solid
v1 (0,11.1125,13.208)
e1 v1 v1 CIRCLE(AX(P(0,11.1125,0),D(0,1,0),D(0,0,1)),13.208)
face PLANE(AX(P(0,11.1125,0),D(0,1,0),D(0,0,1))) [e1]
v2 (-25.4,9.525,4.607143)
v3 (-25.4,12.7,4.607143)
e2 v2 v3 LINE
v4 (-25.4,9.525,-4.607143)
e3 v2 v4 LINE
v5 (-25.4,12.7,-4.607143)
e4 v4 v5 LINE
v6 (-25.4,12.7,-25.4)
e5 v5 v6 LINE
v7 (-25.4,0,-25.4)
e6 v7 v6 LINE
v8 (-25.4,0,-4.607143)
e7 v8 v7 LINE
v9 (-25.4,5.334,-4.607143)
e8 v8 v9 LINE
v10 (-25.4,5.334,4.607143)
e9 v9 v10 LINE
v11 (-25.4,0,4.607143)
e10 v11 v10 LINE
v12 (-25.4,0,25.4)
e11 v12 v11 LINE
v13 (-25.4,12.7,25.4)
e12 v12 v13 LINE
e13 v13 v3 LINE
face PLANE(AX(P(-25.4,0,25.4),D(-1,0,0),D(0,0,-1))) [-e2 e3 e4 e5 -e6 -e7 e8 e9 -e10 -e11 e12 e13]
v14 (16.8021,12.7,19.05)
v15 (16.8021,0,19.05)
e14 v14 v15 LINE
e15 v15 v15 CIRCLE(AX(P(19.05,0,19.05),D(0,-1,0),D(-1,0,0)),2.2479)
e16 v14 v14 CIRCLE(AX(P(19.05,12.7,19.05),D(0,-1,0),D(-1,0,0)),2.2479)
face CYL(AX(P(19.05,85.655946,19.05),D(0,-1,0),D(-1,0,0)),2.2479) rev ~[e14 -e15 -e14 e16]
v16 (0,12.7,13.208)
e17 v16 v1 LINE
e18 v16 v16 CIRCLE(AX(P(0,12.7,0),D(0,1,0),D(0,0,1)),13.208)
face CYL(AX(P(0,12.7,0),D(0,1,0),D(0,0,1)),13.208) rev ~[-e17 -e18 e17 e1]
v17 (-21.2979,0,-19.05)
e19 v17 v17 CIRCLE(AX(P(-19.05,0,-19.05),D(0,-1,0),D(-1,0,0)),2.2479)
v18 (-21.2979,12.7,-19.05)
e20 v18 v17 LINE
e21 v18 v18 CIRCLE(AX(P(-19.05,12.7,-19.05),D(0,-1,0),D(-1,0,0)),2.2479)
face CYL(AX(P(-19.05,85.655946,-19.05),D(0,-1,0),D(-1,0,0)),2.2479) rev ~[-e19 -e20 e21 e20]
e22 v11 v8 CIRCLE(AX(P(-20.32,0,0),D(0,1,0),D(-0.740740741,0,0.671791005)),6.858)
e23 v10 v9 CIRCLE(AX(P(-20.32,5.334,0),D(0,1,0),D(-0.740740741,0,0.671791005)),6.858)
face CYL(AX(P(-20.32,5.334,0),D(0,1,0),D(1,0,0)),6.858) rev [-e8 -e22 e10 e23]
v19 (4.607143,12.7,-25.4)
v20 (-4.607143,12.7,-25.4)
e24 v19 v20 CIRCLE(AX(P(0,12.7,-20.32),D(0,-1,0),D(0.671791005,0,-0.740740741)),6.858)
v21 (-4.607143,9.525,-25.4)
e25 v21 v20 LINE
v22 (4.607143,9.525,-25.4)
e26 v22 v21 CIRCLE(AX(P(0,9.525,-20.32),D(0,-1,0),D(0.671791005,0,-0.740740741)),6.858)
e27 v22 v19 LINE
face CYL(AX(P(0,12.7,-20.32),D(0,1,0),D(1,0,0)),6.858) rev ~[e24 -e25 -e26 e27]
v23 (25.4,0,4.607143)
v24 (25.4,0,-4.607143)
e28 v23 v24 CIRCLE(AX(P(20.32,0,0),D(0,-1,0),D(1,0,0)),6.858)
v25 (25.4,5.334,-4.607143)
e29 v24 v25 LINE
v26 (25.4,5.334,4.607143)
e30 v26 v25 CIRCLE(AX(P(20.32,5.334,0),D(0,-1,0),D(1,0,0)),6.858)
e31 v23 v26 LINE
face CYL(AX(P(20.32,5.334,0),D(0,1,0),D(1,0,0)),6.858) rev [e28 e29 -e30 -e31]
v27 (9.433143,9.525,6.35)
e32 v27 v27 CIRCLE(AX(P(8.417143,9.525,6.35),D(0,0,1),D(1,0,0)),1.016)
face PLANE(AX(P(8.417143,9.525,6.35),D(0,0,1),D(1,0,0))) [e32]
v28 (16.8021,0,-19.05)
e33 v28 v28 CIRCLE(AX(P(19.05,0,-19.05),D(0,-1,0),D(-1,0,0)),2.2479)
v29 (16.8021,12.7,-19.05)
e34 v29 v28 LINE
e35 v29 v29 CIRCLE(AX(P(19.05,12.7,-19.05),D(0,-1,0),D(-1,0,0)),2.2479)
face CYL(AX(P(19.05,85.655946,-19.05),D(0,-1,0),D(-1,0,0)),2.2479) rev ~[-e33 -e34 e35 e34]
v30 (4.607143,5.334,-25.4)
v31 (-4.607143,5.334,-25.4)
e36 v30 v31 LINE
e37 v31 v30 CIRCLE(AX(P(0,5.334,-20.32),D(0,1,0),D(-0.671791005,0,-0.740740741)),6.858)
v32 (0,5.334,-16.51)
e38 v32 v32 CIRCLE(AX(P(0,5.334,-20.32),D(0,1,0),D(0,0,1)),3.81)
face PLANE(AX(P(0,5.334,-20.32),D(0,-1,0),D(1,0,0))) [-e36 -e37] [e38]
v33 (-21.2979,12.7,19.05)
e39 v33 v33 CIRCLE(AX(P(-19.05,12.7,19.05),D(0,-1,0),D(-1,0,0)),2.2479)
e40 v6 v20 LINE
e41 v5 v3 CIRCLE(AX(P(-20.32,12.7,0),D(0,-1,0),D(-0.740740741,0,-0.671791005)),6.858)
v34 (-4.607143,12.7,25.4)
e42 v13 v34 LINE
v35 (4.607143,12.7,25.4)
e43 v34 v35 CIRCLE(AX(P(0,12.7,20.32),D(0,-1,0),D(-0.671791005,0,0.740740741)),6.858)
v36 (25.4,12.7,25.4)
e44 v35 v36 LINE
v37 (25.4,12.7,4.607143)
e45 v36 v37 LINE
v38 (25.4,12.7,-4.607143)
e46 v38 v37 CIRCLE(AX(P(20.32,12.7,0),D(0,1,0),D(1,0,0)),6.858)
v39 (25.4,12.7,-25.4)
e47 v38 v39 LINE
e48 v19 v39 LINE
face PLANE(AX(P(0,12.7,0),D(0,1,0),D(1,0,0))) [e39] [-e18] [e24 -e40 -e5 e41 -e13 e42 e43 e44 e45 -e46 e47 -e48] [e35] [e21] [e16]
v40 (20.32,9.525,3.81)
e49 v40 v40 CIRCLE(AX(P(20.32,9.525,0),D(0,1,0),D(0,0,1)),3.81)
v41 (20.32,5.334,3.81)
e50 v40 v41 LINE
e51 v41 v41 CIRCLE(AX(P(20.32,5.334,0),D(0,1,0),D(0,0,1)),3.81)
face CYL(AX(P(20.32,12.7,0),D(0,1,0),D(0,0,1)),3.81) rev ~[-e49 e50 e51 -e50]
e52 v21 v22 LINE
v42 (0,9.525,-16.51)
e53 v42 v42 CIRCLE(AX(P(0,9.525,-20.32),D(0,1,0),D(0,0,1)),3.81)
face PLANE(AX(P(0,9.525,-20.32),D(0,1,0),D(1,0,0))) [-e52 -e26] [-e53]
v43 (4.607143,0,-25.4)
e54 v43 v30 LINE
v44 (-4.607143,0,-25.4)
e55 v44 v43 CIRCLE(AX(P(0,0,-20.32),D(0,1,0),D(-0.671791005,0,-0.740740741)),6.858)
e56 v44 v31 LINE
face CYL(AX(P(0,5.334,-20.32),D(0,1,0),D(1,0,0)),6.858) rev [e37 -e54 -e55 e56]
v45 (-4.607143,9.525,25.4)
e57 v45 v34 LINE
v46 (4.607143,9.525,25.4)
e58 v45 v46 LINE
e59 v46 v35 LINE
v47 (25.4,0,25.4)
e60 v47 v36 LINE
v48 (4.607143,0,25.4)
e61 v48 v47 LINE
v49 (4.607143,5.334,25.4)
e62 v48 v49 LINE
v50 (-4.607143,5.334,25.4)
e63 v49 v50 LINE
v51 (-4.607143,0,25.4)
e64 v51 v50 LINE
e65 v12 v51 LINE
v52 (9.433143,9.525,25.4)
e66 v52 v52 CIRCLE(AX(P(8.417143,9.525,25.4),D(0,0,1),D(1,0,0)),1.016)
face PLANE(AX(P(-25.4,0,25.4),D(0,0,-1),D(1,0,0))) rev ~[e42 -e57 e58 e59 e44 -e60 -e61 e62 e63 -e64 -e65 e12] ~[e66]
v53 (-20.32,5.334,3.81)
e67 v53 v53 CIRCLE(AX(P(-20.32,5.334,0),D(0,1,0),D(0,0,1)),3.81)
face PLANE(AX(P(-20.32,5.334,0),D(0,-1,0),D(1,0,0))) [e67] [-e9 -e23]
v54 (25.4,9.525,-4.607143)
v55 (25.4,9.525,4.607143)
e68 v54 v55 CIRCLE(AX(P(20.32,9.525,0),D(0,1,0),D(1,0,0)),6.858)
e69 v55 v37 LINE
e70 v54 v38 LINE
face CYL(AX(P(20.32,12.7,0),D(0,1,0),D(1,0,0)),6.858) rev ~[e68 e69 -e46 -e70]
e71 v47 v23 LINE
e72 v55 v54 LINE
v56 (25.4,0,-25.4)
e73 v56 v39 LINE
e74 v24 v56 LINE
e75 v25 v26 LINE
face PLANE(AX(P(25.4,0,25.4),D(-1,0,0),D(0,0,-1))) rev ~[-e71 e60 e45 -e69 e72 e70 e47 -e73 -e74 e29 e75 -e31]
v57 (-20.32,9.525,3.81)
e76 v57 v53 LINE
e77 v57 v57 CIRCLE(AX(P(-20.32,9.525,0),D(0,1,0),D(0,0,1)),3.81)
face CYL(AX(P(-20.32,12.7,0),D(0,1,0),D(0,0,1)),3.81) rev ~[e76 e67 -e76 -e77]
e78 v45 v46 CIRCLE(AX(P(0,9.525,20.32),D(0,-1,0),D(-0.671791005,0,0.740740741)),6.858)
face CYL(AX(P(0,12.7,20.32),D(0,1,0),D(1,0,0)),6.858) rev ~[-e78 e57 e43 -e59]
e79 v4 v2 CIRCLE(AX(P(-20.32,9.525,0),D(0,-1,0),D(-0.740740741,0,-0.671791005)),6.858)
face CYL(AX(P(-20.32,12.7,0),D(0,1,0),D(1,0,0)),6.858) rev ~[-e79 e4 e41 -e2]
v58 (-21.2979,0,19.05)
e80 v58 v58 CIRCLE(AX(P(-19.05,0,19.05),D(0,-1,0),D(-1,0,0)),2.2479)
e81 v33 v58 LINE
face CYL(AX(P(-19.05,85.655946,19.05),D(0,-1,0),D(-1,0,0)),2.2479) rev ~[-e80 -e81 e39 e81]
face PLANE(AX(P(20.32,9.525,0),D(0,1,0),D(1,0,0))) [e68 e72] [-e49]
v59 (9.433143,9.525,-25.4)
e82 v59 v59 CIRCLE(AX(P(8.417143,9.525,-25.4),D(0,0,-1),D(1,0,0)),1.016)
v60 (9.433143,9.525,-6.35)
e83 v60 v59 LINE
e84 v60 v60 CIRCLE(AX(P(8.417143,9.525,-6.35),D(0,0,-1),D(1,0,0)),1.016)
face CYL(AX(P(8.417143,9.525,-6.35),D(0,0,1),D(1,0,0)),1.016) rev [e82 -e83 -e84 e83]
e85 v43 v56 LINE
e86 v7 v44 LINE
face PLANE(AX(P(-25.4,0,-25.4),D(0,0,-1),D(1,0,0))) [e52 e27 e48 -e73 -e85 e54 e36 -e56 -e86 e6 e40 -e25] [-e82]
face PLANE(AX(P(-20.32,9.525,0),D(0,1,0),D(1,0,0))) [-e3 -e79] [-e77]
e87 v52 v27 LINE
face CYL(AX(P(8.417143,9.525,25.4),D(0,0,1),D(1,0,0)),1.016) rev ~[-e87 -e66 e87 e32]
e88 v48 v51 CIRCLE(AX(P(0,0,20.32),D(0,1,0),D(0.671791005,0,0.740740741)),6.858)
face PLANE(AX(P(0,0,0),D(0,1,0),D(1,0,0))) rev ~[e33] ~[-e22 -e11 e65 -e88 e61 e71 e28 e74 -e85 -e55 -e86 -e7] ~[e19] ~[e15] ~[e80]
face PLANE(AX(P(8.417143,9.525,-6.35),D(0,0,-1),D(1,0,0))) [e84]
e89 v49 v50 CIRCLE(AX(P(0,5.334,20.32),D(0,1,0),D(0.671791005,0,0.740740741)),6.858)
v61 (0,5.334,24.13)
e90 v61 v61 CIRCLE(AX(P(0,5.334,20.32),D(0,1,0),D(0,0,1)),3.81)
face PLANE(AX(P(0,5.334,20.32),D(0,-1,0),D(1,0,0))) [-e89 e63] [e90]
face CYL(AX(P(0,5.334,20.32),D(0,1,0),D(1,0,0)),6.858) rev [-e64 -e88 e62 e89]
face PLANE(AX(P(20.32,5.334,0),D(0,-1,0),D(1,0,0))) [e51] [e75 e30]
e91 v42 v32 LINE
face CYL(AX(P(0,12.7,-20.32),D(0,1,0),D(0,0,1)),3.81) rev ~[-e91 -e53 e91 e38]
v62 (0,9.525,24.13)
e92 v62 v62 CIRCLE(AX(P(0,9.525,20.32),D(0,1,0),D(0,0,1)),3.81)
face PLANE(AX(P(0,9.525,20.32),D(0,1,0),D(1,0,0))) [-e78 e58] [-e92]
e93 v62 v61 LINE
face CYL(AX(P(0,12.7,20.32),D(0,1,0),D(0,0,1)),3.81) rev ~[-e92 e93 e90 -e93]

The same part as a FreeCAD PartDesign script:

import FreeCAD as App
import Part
import Sketcher

V = App.Vector
Q = App.Units.Quantity

doc = App.newDocument("Part")
body = doc.addObject("PartDesign::Body", "Body")

sketch1 = body.newObject("Sketcher::SketchObject", "Sketch")
sketch1.AttachmentSupport = (doc.getObject("XZ_Plane"), [""])
sketch1.MapMode = "FlatFace"
sketch1.addGeometry(Part.LineSegment(V(-25.4, -25.4, 0), V(-25.4, 25.4, 0)), False)
sketch1.addGeometry(Part.LineSegment(V(-25.4, 25.4, 0), V(25.4, 25.4, 0)), False)
sketch1.addGeometry(Part.LineSegment(V(25.4, 25.4, 0), V(25.4, -25.4, 0)), False)
sketch1.addGeometry(Part.LineSegment(V(25.4, -25.4, 0), V(-25.4, -25.4, 0)), False)
sketch1.addConstraint(Sketcher.Constraint("Coincident", 0, 2, 1, 1))
sketch1.addConstraint(Sketcher.Constraint("Coincident", 1, 2, 2, 1))
sketch1.addConstraint(Sketcher.Constraint("Coincident", 2, 2, 3, 1))
sketch1.addConstraint(Sketcher.Constraint("Coincident", 3, 2, 0, 1))
sketch1.addConstraint(Sketcher.Constraint("Vertical", 0))
sketch1.addConstraint(Sketcher.Constraint("Horizontal", 1))
sketch1.addConstraint(Sketcher.Constraint("Vertical", 2))
sketch1.addConstraint(Sketcher.Constraint("Horizontal", 3))
sketch1.addConstraint(Sketcher.Constraint("Symmetric", 0, 2, 2, 2, -1, 1))
sketch1.addConstraint(Sketcher.Constraint("Equal", 3, 0))
sketch1.addConstraint(Sketcher.Constraint("DistanceX", 1, 1, 1, 2, Q("2 in")))
pad1 = body.newObject("PartDesign::Pad", "Pad")
pad1.Profile = sketch1
pad1.Length = Q("0.5 in")
pad1.Reversed = True

sketch2 = body.newObject("Sketcher::SketchObject", "Sketch001")
sketch2.AttachmentSupport = (doc.getObject("XZ_Plane"), [""])
sketch2.MapMode = "FlatFace"
sketch2.AttachmentOffset = App.Placement(V(0, 0, -0.5 * 25.4), App.Rotation())
sketch2.addGeometry(Part.Circle(V(-19.05, 19.05, 0), V(0, 0, 1), 2.2479), False)
sketch2.addGeometry(Part.Circle(V(-19.05, -19.05, 0), V(0, 0, 1), 2.2479), False)
sketch2.addGeometry(Part.Circle(V(19.05, -19.05, 0), V(0, 0, 1), 2.2479), False)
sketch2.addGeometry(Part.Circle(V(19.05, 19.05, 0), V(0, 0, 1), 2.2479), False)
sketch2.addConstraint(Sketcher.Constraint("Equal", 0, 1))
sketch2.addConstraint(Sketcher.Constraint("Equal", 1, 2))
sketch2.addConstraint(Sketcher.Constraint("Equal", 2, 3))
sketch2.addConstraint(Sketcher.Constraint("Symmetric", 0, 3, 2, 3, -1, 1))
sketch2.addConstraint(Sketcher.Constraint("Symmetric", 1, 3, 3, 3, -1, 1))
sketch2.addConstraint(Sketcher.Constraint("Symmetric", 1, 3, 2, 3, -2))
sketch2.addConstraint(Sketcher.Constraint("Diameter", 0, Q("0.177 in")))
sketch2.addConstraint(Sketcher.Constraint("DistanceY", 1, 3, 0, 3, Q("1.5 in")))
sketch2.addConstraint(Sketcher.Constraint("DistanceX", 1, 3, 2, 3, Q("1.5 in")))
doc.recompute()
hole = body.newObject("PartDesign::Hole", "Hole")
hole.Profile = sketch2
hole.ThreadType = "None"
hole.Diameter = Q("0.177 in")
hole.DepthType = "ThroughAll"
hole.Reversed = True

sketch3 = body.newObject("Sketcher::SketchObject", "Sketch002")
sketch3.AttachmentSupport = (doc.getObject("XZ_Plane"), [""])
sketch3.MapMode = "FlatFace"
sketch3.AttachmentOffset = App.Placement(V(0, 0, -0.5 * 25.4), App.Rotation())
sketch3.addGeometry(Part.Circle(V(0, 0, 0), V(0, 0, 1), 13.208), False)
sketch3.addConstraint(Sketcher.Constraint("Coincident", 0, 3, -1, 1))
sketch3.addConstraint(Sketcher.Constraint("Diameter", 0, Q("1.04 in")))
pocket1 = body.newObject("PartDesign::Pocket", "Pocket")
pocket1.Profile = sketch3
pocket1.Length = Q("0.0625 in")
pocket1.Reversed = True

sketch4 = body.newObject("Sketcher::SketchObject", "Sketch003")
sketch4.AttachmentSupport = (doc.getObject("XZ_Plane"), [""])
sketch4.MapMode = "FlatFace"
sketch4.AttachmentOffset = App.Placement(V(0, 0, -0.5 * 25.4), App.Rotation())
sketch4.addGeometry(Part.Circle(V(0, -20.32, 0), V(0, 0, 1), 3.81), False)
sketch4.addGeometry(Part.Circle(V(20.32, 0, 0), V(0, 0, 1), 3.81), False)
sketch4.addGeometry(Part.Circle(V(0, 20.32, 0), V(0, 0, 1), 3.81), False)
sketch4.addGeometry(Part.Circle(V(-20.32, 0, 0), V(0, 0, 1), 3.81), False)
sketch4.addConstraint(Sketcher.Constraint("Equal", 0, 1))
sketch4.addConstraint(Sketcher.Constraint("Equal", 1, 2))
sketch4.addConstraint(Sketcher.Constraint("Equal", 2, 3))
sketch4.addConstraint(Sketcher.Constraint("Symmetric", 0, 3, 2, 3, -1, 1))
sketch4.addConstraint(Sketcher.Constraint("Symmetric", 1, 3, 3, 3, -1, 1))
sketch4.addConstraint(Sketcher.Constraint("PointOnObject", 0, 3, -2))
sketch4.addConstraint(Sketcher.Constraint("PointOnObject", 1, 3, -1))
sketch4.addConstraint(Sketcher.Constraint("Diameter", 0, Q("0.3 in")))
sketch4.addConstraint(Sketcher.Constraint("DistanceY", 0, 3, -1, 1, Q("0.8 in")))
sketch4.addConstraint(Sketcher.Constraint("DistanceX", -1, 1, 1, 3, Q("0.8 in")))
pocket2 = body.newObject("PartDesign::Pocket", "Pocket001")
pocket2.Profile = sketch4
pocket2.Type = "ThroughAll"
pocket2.Reversed = True

sketch5 = body.newObject("Sketcher::SketchObject", "Sketch004")
sketch5.AttachmentSupport = (doc.getObject("XZ_Plane"), [""])
sketch5.MapMode = "FlatFace"
sketch5.AttachmentOffset = App.Placement(V(0, 0, -0.5 * 25.4), App.Rotation())
sketch5.addGeometry(Part.Circle(V(-20.32, 0, 0), V(0, 0, 1), 6.858), False)
sketch5.addGeometry(Part.Circle(V(0, -20.32, 0), V(0, 0, 1), 6.858), False)
sketch5.addGeometry(Part.Circle(V(20.32, 0, 0), V(0, 0, 1), 6.858), False)
sketch5.addGeometry(Part.Circle(V(0, 20.32, 0), V(0, 0, 1), 6.858), False)
sketch5.addConstraint(Sketcher.Constraint("Equal", 0, 1))
sketch5.addConstraint(Sketcher.Constraint("Equal", 1, 2))
sketch5.addConstraint(Sketcher.Constraint("Equal", 2, 3))
sketch5.addConstraint(Sketcher.Constraint("Symmetric", 0, 3, 2, 3, -1, 1))
sketch5.addConstraint(Sketcher.Constraint("Symmetric", 1, 3, 3, 3, -1, 1))
sketch5.addConstraint(Sketcher.Constraint("PointOnObject", 0, 3, -1))
sketch5.addConstraint(Sketcher.Constraint("PointOnObject", 1, 3, -2))
sketch5.addConstraint(Sketcher.Constraint("Diameter", 0, Q("0.54 in")))
sketch5.addConstraint(Sketcher.Constraint("DistanceX", 0, 3, -1, 1, Q("0.8 in")))
sketch5.addConstraint(Sketcher.Constraint("DistanceY", 1, 3, -1, 1, Q("0.8 in")))
pocket3 = body.newObject("PartDesign::Pocket", "Pocket002")
pocket3.Profile = sketch5
pocket3.Length = Q("0.125 in")
pocket3.Reversed = True

sketch6 = body.newObject("Sketcher::SketchObject", "Sketch005")
sketch6.AttachmentSupport = (doc.getObject("XZ_Plane"), [""])
sketch6.MapMode = "FlatFace"
sketch6.AttachmentOffset = App.Placement(V(0, 0, -0.21 * 25.4), App.Rotation())
sketch6.addGeometry(Part.Circle(V(-20.32, 0, 0), V(0, 0, 1), 6.858), False)
sketch6.addGeometry(Part.Circle(V(0, 20.32, 0), V(0, 0, 1), 6.858), False)
sketch6.addGeometry(Part.Circle(V(20.32, 0, 0), V(0, 0, 1), 6.858), False)
sketch6.addGeometry(Part.Circle(V(0, -20.32, 0), V(0, 0, 1), 6.858), False)
sketch6.addConstraint(Sketcher.Constraint("Equal", 0, 1))
sketch6.addConstraint(Sketcher.Constraint("Equal", 1, 2))
sketch6.addConstraint(Sketcher.Constraint("Equal", 2, 3))
sketch6.addConstraint(Sketcher.Constraint("Symmetric", 0, 3, 2, 3, -1, 1))
sketch6.addConstraint(Sketcher.Constraint("Symmetric", 1, 3, 3, 3, -1, 1))
sketch6.addConstraint(Sketcher.Constraint("PointOnObject", 0, 3, -1))
sketch6.addConstraint(Sketcher.Constraint("PointOnObject", 1, 3, -2))
sketch6.addConstraint(Sketcher.Constraint("Diameter", 0, Q("0.54 in")))
sketch6.addConstraint(Sketcher.Constraint("DistanceX", 0, 3, -1, 1, Q("0.8 in")))
sketch6.addConstraint(Sketcher.Constraint("DistanceY", -1, 1, 1, 3, Q("0.8 in")))
pocket4 = body.newObject("PartDesign::Pocket", "Pocket003")
pocket4.Profile = sketch6
pocket4.Length = Q("0.21 in")
pocket4.Reversed = True

sketch7 = body.newObject("Sketcher::SketchObject", "Sketch006")
sketch7.AttachmentSupport = (doc.getObject("XY_Plane"), [""])
sketch7.MapMode = "FlatFace"
sketch7.AttachmentOffset = App.Placement(V(0, 0, 1 * 25.4), App.Rotation())
sketch7.addGeometry(Part.Circle(V(8.417143, 9.525, 0), V(0, 0, 1), 1.016), False)
sketch7.addConstraint(Sketcher.Constraint("Diameter", 0, Q("0.08 in")))
sketch7.addConstraint(Sketcher.Constraint("DistanceY", -1, 1, 0, 3, Q("0.375 in")))
sketch7.addConstraint(Sketcher.Constraint("DistanceX", -1, 1, 0, 3, 8.417143))
pocket5 = body.newObject("PartDesign::Pocket", "Pocket004")
pocket5.Profile = sketch7
pocket5.Length = Q("0.75 in")

sketch8 = body.newObject("Sketcher::SketchObject", "Sketch007")
sketch8.AttachmentSupport = (doc.getObject("XY_Plane"), [""])
sketch8.MapMode = "FlatFace"
sketch8.AttachmentOffset = App.Placement(V(0, 0, -0.25 * 25.4), App.Rotation())
sketch8.addGeometry(Part.Circle(V(8.417143, 9.525, 0), V(0, 0, 1), 1.016), False)
sketch8.addConstraint(Sketcher.Constraint("Diameter", 0, Q("0.08 in")))
sketch8.addConstraint(Sketcher.Constraint("DistanceY", -1, 1, 0, 3, Q("0.375 in")))
sketch8.addConstraint(Sketcher.Constraint("DistanceX", -1, 1, 0, 3, 8.417143))
pocket6 = body.newObject("PartDesign::Pocket", "Pocket005")
pocket6.Profile = sketch8
pocket6.Length = Q("0.75 in")

doc.recompute()
